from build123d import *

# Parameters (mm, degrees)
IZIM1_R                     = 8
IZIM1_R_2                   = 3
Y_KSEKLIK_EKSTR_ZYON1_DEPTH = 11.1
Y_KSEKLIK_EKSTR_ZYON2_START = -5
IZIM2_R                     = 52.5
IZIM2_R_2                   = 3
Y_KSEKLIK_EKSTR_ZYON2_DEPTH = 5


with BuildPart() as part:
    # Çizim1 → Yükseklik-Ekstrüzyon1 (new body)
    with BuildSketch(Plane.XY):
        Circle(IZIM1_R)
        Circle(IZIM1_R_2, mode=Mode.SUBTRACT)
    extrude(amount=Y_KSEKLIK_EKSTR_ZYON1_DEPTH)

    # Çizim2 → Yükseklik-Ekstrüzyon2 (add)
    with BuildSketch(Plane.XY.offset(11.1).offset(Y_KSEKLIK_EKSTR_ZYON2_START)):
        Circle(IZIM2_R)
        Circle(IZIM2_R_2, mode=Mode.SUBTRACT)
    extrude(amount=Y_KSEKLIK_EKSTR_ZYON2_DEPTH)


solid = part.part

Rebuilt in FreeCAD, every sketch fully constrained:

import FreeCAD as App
import Part
import Sketcher
from FreeCAD import Vector
Q = App.Units.Quantity

doc = App.newDocument("Part")
body = doc.addObject("PartDesign::Body", "Body")

# Sketch on XY plane
sketch1 = body.newObject("Sketcher::SketchObject", "Sketch")
sketch1.AttachmentSupport = (doc.getObject("XY_Plane"), [""])
sketch1.MapMode = "FlatFace"
sketch1.addGeometry([
    Part.Circle(Vector(0, 0, 0), Vector(0, 0, 1), 8),
    Part.Circle(Vector(0, 0, 0), Vector(0, 0, 1), 3),
], False)
sketch1.addConstraint([
    Sketcher.Constraint("Coincident", 0, 3, -1, 1),
    Sketcher.Constraint("Coincident", 1, 3, -1, 1),
    Sketcher.Constraint("Diameter", 0, Q("16 mm")),
    Sketcher.Constraint("Diameter", 1, Q("6 mm")),
])
pad1 = body.newObject("PartDesign::Pad", "Pad")
pad1.Profile = sketch1
pad1.Length = 11.1

# Sketch on XY plane
sketch2 = body.newObject("Sketcher::SketchObject", "Sketch001")
sketch2.AttachmentSupport = (doc.getObject("XY_Plane"), [""])
sketch2.MapMode = "FlatFace"
sketch2.AttachmentOffset = App.Placement(Vector(0, 0, 6.1), App.Rotation())
sketch2.addGeometry([
    Part.Circle(Vector(0, 0, 0), Vector(0, 0, 1), 52.5),
    Part.Circle(Vector(0, 0, 0), Vector(0, 0, 1), 3),
], False)
sketch2.addConstraint([
    Sketcher.Constraint("Coincident", 0, 3, -1, 1),
    Sketcher.Constraint("Coincident", 1, 3, -1, 1),
    Sketcher.Constraint("Diameter", 0, Q("105 mm")),
    Sketcher.Constraint("Diameter", 1, Q("6 mm")),
])
pad2 = body.newObject("PartDesign::Pad", "Pad001")
pad2.Profile = sketch2
pad2.Length = 5

doc.recompute()
